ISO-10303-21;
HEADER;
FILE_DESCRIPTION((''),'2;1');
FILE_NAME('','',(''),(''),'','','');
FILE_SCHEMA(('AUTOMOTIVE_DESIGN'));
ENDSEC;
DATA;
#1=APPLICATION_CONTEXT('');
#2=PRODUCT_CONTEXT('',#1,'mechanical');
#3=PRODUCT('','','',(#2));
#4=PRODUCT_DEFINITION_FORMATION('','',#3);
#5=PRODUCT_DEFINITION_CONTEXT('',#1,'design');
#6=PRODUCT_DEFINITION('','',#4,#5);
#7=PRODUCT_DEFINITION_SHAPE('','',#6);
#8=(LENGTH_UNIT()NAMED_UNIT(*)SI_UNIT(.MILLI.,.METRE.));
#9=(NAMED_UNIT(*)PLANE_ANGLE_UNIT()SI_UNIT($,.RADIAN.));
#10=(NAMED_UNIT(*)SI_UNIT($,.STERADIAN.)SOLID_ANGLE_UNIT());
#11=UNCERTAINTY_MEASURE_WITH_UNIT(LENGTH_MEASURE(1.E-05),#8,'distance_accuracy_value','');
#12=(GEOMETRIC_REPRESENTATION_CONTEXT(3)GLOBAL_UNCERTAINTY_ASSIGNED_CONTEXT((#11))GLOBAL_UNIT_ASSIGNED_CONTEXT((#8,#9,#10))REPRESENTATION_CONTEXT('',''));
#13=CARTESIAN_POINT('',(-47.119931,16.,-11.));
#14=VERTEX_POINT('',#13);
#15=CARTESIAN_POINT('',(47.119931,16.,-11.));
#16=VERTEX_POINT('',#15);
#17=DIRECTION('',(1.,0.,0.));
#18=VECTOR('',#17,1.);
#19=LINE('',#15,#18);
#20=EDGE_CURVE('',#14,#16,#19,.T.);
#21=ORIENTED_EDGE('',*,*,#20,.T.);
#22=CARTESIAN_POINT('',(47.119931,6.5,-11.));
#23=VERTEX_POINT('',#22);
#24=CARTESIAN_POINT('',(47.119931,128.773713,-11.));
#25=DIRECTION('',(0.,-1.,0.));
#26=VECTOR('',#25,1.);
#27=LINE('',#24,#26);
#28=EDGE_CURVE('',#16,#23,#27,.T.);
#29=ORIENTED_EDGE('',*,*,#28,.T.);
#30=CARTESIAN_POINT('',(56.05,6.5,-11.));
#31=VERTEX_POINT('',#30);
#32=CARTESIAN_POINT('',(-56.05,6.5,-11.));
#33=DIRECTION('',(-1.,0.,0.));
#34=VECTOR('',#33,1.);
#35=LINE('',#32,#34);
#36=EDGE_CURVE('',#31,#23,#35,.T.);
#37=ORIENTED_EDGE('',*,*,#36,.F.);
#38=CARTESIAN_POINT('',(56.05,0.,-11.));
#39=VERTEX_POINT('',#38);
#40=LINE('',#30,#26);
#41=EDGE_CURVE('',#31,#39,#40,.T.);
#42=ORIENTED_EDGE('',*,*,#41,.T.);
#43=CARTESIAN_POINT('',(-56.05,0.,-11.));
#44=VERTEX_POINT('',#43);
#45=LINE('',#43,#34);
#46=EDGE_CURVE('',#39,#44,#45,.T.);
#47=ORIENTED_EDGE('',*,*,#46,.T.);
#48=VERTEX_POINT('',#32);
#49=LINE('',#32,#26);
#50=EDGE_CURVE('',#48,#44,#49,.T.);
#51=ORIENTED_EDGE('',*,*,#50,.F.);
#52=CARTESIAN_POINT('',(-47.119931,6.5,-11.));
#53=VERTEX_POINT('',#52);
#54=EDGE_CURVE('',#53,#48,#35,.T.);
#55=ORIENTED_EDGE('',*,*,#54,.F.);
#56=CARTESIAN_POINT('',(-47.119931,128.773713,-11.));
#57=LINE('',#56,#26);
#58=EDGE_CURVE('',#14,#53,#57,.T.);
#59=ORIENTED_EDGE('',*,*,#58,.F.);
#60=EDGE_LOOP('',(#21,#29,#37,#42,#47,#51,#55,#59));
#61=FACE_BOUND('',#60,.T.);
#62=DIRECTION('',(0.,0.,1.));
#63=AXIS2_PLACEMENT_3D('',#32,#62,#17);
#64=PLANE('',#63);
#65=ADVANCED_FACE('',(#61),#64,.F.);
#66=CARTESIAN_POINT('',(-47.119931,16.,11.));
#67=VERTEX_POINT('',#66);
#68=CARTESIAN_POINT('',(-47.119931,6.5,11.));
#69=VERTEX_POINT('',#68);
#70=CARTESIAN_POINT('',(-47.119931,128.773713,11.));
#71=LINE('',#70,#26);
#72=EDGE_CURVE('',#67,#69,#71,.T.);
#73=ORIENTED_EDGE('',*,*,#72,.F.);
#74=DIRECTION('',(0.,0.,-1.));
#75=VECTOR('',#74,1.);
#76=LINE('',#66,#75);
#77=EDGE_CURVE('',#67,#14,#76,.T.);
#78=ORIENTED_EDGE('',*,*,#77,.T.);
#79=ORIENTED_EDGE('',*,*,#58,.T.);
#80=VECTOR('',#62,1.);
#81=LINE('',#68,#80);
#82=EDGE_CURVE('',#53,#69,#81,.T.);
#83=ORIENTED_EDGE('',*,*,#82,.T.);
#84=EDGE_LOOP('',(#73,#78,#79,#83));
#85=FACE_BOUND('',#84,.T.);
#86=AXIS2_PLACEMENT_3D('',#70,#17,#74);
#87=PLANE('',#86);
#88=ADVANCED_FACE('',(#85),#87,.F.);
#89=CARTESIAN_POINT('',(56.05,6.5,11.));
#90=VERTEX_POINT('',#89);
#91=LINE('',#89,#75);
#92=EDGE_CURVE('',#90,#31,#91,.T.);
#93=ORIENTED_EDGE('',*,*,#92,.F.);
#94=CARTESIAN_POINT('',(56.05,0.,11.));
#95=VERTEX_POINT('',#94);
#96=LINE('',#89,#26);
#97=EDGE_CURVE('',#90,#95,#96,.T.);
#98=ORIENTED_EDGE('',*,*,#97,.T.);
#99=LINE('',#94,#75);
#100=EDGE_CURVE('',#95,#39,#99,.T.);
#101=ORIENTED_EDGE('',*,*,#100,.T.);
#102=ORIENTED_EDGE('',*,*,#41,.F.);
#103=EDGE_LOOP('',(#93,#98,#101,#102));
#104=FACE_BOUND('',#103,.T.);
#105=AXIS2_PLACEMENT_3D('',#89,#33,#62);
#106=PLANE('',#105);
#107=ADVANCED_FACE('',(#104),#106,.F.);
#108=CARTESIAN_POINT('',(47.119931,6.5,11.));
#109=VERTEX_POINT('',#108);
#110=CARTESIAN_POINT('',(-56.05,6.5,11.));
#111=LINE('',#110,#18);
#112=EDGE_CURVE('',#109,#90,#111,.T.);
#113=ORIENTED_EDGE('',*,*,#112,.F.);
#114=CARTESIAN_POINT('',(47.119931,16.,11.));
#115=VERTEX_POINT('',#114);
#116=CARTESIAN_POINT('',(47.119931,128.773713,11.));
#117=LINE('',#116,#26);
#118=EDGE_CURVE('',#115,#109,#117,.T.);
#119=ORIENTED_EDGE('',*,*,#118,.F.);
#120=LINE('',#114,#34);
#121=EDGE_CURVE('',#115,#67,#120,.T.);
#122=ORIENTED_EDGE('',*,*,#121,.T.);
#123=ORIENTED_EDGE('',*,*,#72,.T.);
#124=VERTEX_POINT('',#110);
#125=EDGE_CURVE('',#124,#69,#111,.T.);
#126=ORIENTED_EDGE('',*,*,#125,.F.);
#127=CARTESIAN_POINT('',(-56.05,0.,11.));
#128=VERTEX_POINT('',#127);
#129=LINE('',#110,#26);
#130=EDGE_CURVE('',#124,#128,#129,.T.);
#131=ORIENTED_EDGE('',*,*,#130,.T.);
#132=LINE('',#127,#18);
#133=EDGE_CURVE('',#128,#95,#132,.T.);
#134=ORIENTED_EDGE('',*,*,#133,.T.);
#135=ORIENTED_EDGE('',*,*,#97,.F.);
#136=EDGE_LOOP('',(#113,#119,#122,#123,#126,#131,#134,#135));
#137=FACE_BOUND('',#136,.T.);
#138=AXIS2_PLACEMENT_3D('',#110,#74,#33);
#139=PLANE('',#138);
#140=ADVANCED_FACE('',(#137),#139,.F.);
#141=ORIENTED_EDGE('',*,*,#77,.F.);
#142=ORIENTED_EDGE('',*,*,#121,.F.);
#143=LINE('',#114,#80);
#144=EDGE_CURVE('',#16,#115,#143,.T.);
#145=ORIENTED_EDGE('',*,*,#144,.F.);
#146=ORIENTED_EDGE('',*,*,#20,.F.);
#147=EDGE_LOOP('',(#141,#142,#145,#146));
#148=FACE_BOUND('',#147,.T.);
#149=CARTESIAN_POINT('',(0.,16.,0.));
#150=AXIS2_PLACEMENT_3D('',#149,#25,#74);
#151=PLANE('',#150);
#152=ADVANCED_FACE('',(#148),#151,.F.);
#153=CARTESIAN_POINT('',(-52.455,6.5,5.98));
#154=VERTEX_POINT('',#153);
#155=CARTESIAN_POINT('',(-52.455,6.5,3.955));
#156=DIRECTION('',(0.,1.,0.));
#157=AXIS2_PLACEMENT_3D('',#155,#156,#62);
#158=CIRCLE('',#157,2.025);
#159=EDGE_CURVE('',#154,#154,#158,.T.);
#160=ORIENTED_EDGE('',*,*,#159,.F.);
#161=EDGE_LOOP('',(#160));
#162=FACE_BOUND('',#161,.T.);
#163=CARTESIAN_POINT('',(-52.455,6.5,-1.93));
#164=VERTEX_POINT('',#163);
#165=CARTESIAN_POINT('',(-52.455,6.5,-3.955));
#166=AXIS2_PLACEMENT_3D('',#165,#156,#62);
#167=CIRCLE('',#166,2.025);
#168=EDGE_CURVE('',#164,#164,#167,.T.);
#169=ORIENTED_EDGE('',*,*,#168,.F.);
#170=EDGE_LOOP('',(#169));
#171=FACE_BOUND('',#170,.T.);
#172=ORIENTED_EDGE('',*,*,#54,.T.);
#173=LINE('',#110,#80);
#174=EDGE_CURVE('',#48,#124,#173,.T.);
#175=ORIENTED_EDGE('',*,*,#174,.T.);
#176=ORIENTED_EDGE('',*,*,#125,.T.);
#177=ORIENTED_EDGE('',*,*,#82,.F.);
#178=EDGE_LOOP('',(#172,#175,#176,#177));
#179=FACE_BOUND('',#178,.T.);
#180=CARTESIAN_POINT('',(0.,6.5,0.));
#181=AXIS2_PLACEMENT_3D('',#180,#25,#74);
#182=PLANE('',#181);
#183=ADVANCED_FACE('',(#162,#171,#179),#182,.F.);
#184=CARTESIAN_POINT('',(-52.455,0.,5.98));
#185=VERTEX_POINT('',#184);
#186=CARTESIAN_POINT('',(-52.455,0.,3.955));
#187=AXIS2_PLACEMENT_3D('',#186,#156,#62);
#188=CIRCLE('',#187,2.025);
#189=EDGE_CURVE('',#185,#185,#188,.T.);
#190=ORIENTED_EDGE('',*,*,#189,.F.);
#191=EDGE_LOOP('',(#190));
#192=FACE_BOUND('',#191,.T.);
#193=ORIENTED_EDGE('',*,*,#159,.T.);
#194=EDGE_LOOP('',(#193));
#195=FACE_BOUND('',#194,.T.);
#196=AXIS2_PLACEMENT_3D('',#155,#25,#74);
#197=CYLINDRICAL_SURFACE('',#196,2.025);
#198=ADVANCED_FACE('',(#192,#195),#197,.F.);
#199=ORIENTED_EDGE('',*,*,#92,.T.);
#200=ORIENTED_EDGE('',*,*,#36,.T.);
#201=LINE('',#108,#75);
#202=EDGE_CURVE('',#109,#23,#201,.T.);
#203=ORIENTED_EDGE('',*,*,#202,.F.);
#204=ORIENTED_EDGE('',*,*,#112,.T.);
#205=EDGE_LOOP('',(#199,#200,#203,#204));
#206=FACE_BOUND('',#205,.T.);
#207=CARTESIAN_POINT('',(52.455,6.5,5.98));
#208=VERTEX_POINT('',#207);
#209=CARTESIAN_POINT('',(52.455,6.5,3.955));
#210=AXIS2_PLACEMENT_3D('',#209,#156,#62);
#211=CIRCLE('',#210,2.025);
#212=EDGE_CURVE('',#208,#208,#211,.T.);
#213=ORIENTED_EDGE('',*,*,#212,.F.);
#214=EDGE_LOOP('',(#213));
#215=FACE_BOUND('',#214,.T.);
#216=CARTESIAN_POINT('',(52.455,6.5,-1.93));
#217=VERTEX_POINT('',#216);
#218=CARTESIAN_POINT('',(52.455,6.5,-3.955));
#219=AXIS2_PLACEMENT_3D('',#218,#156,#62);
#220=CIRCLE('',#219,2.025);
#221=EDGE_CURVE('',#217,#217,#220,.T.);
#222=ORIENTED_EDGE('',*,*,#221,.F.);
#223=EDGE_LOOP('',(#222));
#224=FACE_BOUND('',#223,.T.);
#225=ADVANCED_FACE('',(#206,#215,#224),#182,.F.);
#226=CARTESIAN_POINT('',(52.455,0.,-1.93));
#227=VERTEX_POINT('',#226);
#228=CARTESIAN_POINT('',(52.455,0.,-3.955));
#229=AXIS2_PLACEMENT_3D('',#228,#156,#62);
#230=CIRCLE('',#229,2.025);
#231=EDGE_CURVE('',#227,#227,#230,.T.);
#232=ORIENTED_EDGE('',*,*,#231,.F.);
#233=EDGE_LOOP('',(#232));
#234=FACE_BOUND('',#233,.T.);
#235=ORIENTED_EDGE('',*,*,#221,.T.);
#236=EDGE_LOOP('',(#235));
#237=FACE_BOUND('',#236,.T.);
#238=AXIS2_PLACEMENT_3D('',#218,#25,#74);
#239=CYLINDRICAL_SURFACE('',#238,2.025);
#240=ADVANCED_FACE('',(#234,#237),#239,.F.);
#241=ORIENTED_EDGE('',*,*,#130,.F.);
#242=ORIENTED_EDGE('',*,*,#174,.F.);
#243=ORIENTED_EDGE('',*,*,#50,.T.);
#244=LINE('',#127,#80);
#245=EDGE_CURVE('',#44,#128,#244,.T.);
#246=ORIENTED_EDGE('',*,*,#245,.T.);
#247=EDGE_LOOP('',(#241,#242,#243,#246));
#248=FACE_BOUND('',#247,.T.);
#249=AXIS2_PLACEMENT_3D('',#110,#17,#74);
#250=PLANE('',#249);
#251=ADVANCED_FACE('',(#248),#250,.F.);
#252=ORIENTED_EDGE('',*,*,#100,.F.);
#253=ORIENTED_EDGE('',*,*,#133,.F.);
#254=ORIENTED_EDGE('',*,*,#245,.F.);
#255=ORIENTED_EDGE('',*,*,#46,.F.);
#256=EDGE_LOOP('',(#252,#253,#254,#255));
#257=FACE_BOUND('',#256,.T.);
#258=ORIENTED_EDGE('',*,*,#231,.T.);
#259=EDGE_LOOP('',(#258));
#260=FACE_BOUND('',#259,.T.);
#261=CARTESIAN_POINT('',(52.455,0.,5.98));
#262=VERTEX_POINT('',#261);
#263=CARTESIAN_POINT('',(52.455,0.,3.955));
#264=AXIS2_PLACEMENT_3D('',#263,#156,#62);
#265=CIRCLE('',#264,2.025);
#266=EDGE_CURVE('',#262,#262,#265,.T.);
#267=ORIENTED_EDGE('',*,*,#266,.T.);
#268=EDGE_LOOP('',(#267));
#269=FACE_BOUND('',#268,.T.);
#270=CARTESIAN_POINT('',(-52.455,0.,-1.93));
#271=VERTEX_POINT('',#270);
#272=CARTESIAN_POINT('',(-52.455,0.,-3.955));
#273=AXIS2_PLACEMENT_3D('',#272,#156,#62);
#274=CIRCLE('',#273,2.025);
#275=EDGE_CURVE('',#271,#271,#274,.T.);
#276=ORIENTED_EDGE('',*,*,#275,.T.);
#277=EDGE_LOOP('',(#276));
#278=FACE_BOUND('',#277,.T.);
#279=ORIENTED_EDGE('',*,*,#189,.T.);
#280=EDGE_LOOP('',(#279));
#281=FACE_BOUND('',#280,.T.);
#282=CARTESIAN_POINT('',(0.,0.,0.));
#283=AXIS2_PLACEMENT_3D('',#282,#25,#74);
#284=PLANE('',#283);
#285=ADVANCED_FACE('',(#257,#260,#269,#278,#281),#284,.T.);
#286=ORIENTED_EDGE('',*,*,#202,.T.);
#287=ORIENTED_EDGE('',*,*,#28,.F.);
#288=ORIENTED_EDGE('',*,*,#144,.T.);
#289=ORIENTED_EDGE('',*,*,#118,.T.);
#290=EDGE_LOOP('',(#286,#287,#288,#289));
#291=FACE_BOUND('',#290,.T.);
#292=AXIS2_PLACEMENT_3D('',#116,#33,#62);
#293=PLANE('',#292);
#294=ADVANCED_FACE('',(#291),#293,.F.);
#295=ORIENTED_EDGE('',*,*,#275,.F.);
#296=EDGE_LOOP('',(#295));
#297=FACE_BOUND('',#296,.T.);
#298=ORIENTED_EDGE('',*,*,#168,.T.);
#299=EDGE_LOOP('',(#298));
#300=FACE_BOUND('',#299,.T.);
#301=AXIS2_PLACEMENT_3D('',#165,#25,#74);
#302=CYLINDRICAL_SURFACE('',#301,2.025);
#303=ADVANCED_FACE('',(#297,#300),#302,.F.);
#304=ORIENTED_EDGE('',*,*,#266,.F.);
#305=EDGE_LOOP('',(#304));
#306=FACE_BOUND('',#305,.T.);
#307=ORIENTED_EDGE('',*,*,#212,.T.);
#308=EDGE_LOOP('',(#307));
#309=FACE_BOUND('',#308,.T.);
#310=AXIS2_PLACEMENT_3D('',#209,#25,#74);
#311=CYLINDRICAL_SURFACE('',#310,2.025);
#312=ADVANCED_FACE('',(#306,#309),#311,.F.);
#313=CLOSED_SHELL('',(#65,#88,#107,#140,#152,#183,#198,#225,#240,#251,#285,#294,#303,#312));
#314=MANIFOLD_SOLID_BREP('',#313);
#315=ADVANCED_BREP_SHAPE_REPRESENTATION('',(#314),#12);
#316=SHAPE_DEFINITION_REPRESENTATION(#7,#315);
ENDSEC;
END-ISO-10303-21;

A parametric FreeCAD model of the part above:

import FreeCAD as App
import Part
import Sketcher
from FreeCAD import Vector

doc = App.newDocument("Part")
body = doc.addObject("PartDesign::Body", "Body")

# Sketch on XZ plane
sketch1 = body.newObject("Sketcher::SketchObject", "Sketch")
sketch1.AttachmentSupport = (doc.getObject("XZ_Plane"), [""])
sketch1.MapMode = "FlatFace"
sketch1.addGeometry(Part.LineSegment(Vector(-56, -11, 0), Vector(-56, 11, 0)), False)
sketch1.addGeometry(Part.LineSegment(Vector(-56, 11, 0), Vector(56, 11, 0)), False)
sketch1.addGeometry(Part.LineSegment(Vector(56, 11, 0), Vector(56, -11, 0)), False)
sketch1.addGeometry(Part.LineSegment(Vector(56, -11, 0), Vector(-56, -11, 0)), False)
sketch1.addGeometry(Part.Circle(Vector(-52.5, 4, 0), Vector(0, 0, 1), 2), False)
sketch1.addGeometry(Part.Circle(Vector(52.5, 4, 0), Vector(0, 0, 1), 2), False)
sketch1.addGeometry(Part.Circle(Vector(-52.5, -4, 0), Vector(0, 0, 1), 2), False)
sketch1.addGeometry(Part.Circle(Vector(52.5, -4, 0), Vector(0, 0, 1), 2), False)
sketch1.addConstraint(Sketcher.Constraint("Coincident", 0, 2, 1, 1))
sketch1.addConstraint(Sketcher.Constraint("Coincident", 1, 2, 2, 1))
sketch1.addConstraint(Sketcher.Constraint("Coincident", 2, 2, 3, 1))
sketch1.addConstraint(Sketcher.Constraint("Coincident", 3, 2, 0, 1))
sketch1.addConstraint(Sketcher.Constraint("Vertical", 0))
sketch1.addConstraint(Sketcher.Constraint("Horizontal", 1))
sketch1.addConstraint(Sketcher.Constraint("Vertical", 2))
sketch1.addConstraint(Sketcher.Constraint("Horizontal", 3))
sketch1.addConstraint(Sketcher.Constraint("Equal", 4, 5))
sketch1.addConstraint(Sketcher.Constraint("Equal", 5, 6))
sketch1.addConstraint(Sketcher.Constraint("Equal", 6, 7))
sketch1.addConstraint(Sketcher.Constraint("Symmetric", 5, 3, 6, 3, -1, 1))
sketch1.addConstraint(Sketcher.Constraint("Symmetric", 4, 3, 7, 3, -1, 1))
sketch1.addConstraint(Sketcher.Constraint("Symmetric", 0, 2, 2, 2, -1, 1))
sketch1.addConstraint(Sketcher.Constraint("Symmetric", 4, 3, 5, 3, -2))
sketch1.addConstraint(Sketcher.Constraint("Diameter", 4, 4.05))
sketch1.addConstraint(Sketcher.Constraint("DistanceY", 0, 1, 0, 2, 22.0))
sketch1.addConstraint(Sketcher.Constraint("DistanceX", 1, 1, 1, 2, 112.1))
sketch1.addConstraint(Sketcher.Constraint("DistanceX", 4, 3, 5, 3, 104.91))
sketch1.addConstraint(Sketcher.Constraint("DistanceY", 6, 3, 4, 3, 7.91))
pad1 = body.newObject("PartDesign::Pad", "Pad")
pad1.Profile = sketch1
pad1.Length = 6.5
pad1.Reversed = True

# Sketch on XZ plane
sketch2 = body.newObject("Sketcher::SketchObject", "Sketch001")
sketch2.AttachmentSupport = (doc.getObject("XZ_Plane"), [""])
sketch2.MapMode = "FlatFace"
sketch2.AttachmentOffset = App.Placement(Vector(0, 0, -6.5), App.Rotation())
sketch2.addGeometry(Part.LineSegment(Vector(-47, -11, 0), Vector(-47, 11, 0)), False)
sketch2.addGeometry(Part.LineSegment(Vector(-47, 11, 0), Vector(47, 11, 0)), False)
sketch2.addGeometry(Part.LineSegment(Vector(47, 11, 0), Vector(47, -11, 0)), False)
sketch2.addGeometry(Part.LineSegment(Vector(47, -11, 0), Vector(-47, -11, 0)), False)
sketch2.addConstraint(Sketcher.Constraint("Coincident", 0, 2, 1, 1))
sketch2.addConstraint(Sketcher.Constraint("Coincident", 1, 2, 2, 1))
sketch2.addConstraint(Sketcher.Constraint("Coincident", 2, 2, 3, 1))
sketch2.addConstraint(Sketcher.Constraint("Coincident", 3, 2, 0, 1))
sketch2.addConstraint(Sketcher.Constraint("Vertical", 0))
sketch2.addConstraint(Sketcher.Constraint("Horizontal", 1))
sketch2.addConstraint(Sketcher.Constraint("Vertical", 2))
sketch2.addConstraint(Sketcher.Constraint("Horizontal", 3))
sketch2.addConstraint(Sketcher.Constraint("Symmetric", 0, 2, 2, 2, -1, 1))
sketch2.addConstraint(Sketcher.Constraint("DistanceY", 0, 1, 0, 2, 22.0))
sketch2.addConstraint(Sketcher.Constraint("DistanceX", 1, 1, 1, 2, 94.239862))
pad2 = body.newObject("PartDesign::Pad", "Pad001")
pad2.Profile = sketch2
pad2.Length = 9.5
pad2.Reversed = True

doc.recompute()
